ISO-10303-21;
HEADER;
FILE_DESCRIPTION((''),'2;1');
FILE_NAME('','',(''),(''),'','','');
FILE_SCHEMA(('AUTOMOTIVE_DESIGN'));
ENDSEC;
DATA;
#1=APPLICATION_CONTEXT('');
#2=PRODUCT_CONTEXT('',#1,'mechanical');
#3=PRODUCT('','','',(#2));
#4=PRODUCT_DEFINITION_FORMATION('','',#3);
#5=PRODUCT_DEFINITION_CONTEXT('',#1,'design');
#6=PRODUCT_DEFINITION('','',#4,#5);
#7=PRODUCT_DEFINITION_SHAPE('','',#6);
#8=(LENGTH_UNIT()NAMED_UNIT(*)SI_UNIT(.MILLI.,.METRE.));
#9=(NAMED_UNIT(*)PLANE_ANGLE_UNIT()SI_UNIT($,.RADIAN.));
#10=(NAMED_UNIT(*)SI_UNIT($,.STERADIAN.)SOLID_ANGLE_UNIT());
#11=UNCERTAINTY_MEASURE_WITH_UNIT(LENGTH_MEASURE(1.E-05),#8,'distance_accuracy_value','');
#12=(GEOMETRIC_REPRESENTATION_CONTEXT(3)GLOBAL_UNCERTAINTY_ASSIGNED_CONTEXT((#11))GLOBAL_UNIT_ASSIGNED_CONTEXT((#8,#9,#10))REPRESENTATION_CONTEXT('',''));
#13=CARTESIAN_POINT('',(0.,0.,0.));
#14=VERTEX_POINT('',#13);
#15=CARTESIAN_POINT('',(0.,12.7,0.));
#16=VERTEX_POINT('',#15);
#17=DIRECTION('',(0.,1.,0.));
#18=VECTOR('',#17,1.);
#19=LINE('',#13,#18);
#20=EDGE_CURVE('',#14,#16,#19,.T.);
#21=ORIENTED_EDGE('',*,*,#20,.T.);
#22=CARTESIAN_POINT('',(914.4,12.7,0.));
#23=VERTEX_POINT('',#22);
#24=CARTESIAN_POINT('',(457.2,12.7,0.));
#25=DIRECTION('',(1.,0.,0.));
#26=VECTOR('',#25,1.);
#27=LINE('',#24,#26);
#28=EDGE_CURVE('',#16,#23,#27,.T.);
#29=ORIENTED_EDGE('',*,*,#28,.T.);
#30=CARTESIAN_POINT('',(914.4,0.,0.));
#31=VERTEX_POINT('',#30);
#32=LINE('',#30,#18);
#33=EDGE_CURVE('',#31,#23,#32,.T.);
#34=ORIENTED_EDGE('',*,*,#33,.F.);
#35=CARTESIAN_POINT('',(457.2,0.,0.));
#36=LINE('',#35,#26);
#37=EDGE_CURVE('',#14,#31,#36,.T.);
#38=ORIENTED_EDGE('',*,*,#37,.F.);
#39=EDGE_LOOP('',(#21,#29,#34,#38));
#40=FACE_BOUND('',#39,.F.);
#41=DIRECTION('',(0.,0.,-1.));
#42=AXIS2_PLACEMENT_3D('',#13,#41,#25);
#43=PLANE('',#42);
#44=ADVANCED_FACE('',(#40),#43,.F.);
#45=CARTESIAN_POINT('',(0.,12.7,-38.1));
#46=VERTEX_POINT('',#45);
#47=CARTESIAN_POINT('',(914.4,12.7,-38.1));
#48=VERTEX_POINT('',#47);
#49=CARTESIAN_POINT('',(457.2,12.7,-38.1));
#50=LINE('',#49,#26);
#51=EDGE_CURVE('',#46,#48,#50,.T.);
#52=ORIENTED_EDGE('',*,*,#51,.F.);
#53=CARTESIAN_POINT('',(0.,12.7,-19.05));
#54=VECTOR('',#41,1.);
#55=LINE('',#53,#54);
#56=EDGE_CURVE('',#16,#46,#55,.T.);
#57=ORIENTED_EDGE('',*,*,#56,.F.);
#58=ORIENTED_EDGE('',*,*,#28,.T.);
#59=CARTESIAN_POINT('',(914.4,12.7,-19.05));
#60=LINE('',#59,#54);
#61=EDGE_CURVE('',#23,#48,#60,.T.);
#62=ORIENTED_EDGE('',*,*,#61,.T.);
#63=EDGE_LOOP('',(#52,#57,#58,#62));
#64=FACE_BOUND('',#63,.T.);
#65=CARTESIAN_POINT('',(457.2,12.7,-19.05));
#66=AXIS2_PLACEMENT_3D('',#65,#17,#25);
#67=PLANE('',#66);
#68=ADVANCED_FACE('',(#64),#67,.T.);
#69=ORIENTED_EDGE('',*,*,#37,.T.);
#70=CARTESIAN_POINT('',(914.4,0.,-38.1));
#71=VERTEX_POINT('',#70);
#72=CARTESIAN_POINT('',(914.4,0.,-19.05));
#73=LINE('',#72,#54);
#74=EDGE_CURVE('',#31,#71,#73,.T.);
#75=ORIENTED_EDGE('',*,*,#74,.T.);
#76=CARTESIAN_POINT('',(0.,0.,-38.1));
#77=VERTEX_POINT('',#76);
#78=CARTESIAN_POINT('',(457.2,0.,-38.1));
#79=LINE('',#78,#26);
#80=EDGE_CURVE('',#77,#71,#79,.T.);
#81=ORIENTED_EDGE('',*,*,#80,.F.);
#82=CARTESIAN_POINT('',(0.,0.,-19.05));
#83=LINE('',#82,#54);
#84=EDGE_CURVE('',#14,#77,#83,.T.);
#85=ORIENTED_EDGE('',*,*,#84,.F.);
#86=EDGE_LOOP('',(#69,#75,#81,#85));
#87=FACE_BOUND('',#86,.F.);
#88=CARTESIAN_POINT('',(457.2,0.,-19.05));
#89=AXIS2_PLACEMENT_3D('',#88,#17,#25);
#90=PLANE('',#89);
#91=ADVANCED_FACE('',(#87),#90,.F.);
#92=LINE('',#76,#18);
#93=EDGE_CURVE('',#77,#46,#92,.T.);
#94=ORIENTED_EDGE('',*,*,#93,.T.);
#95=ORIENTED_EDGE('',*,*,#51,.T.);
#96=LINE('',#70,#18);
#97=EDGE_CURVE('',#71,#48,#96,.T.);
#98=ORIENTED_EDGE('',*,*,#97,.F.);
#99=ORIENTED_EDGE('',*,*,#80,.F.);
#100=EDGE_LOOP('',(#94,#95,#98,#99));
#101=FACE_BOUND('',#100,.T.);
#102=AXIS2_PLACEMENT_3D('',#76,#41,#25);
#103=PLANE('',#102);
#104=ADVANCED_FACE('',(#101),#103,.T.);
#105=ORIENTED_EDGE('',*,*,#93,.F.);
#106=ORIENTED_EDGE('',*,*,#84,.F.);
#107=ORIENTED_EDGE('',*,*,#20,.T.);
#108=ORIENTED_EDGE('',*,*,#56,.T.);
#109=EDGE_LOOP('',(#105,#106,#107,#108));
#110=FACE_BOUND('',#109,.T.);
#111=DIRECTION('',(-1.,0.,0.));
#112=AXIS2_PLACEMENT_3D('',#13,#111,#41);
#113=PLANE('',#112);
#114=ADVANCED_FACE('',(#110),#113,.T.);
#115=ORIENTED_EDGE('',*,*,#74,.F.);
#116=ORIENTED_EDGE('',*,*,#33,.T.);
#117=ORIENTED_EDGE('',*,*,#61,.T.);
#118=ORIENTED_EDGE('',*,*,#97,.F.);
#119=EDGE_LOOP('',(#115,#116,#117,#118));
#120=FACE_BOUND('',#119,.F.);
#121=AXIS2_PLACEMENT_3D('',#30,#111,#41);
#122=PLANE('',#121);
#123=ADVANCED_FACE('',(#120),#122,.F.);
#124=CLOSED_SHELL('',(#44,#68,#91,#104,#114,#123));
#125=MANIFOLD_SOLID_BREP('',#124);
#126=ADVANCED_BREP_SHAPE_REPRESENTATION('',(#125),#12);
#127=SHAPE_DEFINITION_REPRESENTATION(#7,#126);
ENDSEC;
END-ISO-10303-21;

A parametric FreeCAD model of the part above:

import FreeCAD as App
import Part
import Sketcher

V = App.Vector
Q = App.Units.Quantity

doc = App.newDocument("Part")
body = doc.addObject("PartDesign::Body", "Body")

sketch1 = doc.addObject("Sketcher::SketchObject", "Sketch")
body.addObject(sketch1)
sketch1.AttachmentSupport = (doc.XZ_Plane, [""])
sketch1.MapMode = "FlatFace"
sketch1.addGeometry([
    Part.LineSegment(V(0, -38, 0), V(0, 0, 0)),
    Part.LineSegment(V(0, 0, 0), V(914, 0, 0)),
    Part.LineSegment(V(914, 0, 0), V(914, -38, 0)),
    Part.LineSegment(V(914, -38, 0), V(0, -38, 0)),
], False)
sketch1.addConstraint([
    Sketcher.Constraint("Coincident", 0, 2, 1, 1),
    Sketcher.Constraint("Coincident", 1, 2, 2, 1),
    Sketcher.Constraint("Coincident", 2, 2, 3, 1),
    Sketcher.Constraint("Coincident", 3, 2, 0, 1),
    Sketcher.Constraint("Vertical", 0),
    Sketcher.Constraint("Horizontal", 1),
    Sketcher.Constraint("Vertical", 2),
    Sketcher.Constraint("Horizontal", 3),
    Sketcher.Constraint("Coincident", 0, 2, -1, 1),
    Sketcher.Constraint("DistanceX", 1, 1, 1, 2, Q("36 in")),
    Sketcher.Constraint("DistanceY", 0, 1, 0, 2, Q("1.5 in")),
])
pad1 = doc.addObject("PartDesign::Pad", "Pad")
body.addObject(pad1)
pad1.Profile = sketch1
pad1.Length = Q("0.5 in")
pad1.Reversed = True

doc.recompute()
